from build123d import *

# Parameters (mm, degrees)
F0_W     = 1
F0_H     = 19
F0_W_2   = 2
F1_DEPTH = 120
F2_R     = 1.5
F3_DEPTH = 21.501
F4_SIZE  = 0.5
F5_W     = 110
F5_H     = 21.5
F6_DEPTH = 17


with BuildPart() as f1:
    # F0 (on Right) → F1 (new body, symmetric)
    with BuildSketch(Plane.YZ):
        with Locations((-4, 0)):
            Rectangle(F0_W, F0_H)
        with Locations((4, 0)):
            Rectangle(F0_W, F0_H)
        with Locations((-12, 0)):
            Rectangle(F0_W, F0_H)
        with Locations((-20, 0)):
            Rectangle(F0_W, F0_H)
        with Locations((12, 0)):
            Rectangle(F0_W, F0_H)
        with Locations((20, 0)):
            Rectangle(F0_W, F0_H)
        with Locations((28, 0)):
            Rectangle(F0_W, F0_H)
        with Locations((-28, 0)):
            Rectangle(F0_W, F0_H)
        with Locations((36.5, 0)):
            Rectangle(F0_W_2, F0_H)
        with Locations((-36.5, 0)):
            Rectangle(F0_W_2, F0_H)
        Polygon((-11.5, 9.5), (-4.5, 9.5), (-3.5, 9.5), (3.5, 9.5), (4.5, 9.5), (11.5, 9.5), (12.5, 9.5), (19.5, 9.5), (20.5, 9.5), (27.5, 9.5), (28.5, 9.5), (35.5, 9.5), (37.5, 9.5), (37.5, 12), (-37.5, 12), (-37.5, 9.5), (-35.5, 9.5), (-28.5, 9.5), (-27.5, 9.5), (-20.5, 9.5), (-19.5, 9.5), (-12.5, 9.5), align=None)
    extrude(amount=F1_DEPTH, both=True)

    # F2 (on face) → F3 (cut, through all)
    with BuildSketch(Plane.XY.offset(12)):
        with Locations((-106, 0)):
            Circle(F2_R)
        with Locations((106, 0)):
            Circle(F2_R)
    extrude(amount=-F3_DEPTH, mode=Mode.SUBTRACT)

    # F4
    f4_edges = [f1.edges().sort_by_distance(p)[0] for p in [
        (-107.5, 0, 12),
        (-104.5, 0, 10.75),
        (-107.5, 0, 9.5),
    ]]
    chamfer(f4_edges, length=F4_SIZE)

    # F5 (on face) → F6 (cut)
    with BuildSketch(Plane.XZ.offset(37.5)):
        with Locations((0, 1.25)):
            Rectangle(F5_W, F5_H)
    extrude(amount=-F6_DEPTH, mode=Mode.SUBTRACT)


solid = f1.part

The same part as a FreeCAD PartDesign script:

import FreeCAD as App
import Part
import Sketcher
from FreeCAD import Vector
Q = App.Units.Quantity


def edges_at(feature, points):
    """Names of the edges that pass closest to the given points."""
    edges = feature.Shape.Edges
    near = lambda p: min(range(len(edges)), key=lambda i: edges[i].distToShape(Part.Vertex(*p))[0])
    return sorted({f"Edge{near(p) + 1}" for p in points})


def add_polygon(sketch, points):
    """Adds a closed chain of lines whose ends are joined by coincident constraints."""
    first, n = sketch.GeometryCount, len(points)
    for a, b in zip(points, points[1:] + points[:1]):
        sketch.addGeometry(Part.LineSegment(App.Vector(*a, 0), App.Vector(*b, 0)), False)
    for i in range(n):
        sketch.addConstraint(Sketcher.Constraint("Coincident", first + i, 2, first + (i + 1) % n, 1))

doc = App.newDocument("Part")
body = doc.addObject("PartDesign::Body", "Body")

# Sketch on YZ plane
sketch1 = body.newObject("Sketcher::SketchObject", "Sketch")
sketch1.AttachmentSupport = (doc.getObject("YZ_Plane"), [""])
sketch1.MapMode = "FlatFace"
add_polygon(sketch1, [(-4.5, 9.5), (-4.5, -9.5), (-3.5, -9.5), (-3.5, 9.5), (3.5, 9.5), (3.5, -9.5), (4.5, -9.5), (4.5, 9.5), (11.5, 9.5), (11.5, -9.5), (12.5, -9.5), (12.5, 9.5), (19.5, 9.5), (19.5, -9.5), (20.5, -9.5), (20.5, 9.5), (27.5, 9.5), (27.5, -9.5), (28.5, -9.5), (28.5, 9.5), (35.5, 9.5), (35.5, -9.5), (37.5, -9.5), (37.5, 12), (-37.5, 12), (-37.5, -9.5), (-35.5, -9.5), (-35.5, 9.5), (-28.5, 9.5), (-28.5, -9.5), (-27.5, -9.5), (-27.5, 9.5), (-20.5, 9.5), (-20.5, -9.5), (-19.5, -9.5), (-19.5, 9.5), (-12.5, 9.5), (-12.5, -9.5), (-11.5, -9.5), (-11.5, 9.5)])  # lines 0-39
sketch1.addConstraint([
    Sketcher.Constraint("Vertical", 0),
    Sketcher.Constraint("Horizontal", 1),
    Sketcher.Constraint("Vertical", 2),
    Sketcher.Constraint("Horizontal", 3),
    Sketcher.Constraint("Vertical", 4),
    Sketcher.Constraint("Horizontal", 5),
    Sketcher.Constraint("Vertical", 6),
    Sketcher.Constraint("Horizontal", 7),
    Sketcher.Constraint("Vertical", 8),
    Sketcher.Constraint("Horizontal", 9),
    Sketcher.Constraint("Vertical", 10),
    Sketcher.Constraint("Horizontal", 11),
    Sketcher.Constraint("Vertical", 12),
    Sketcher.Constraint("Horizontal", 13),
    Sketcher.Constraint("Vertical", 14),
    Sketcher.Constraint("Horizontal", 15),
    Sketcher.Constraint("Vertical", 16),
    Sketcher.Constraint("Horizontal", 17),
    Sketcher.Constraint("Vertical", 18),
    Sketcher.Constraint("Horizontal", 19),
    Sketcher.Constraint("Vertical", 20),
    Sketcher.Constraint("Horizontal", 21),
    Sketcher.Constraint("Vertical", 22),
    Sketcher.Constraint("Horizontal", 23),
    Sketcher.Constraint("Vertical", 24),
    Sketcher.Constraint("Horizontal", 25),
    Sketcher.Constraint("Vertical", 26),
    Sketcher.Constraint("Horizontal", 27),
    Sketcher.Constraint("Vertical", 28),
    Sketcher.Constraint("Horizontal", 29),
    Sketcher.Constraint("Vertical", 30),
    Sketcher.Constraint("Horizontal", 31),
    Sketcher.Constraint("Vertical", 32),
    Sketcher.Constraint("Horizontal", 33),
    Sketcher.Constraint("Vertical", 34),
    Sketcher.Constraint("Horizontal", 35),
    Sketcher.Constraint("Vertical", 36),
    Sketcher.Constraint("Horizontal", 37),
    Sketcher.Constraint("Vertical", 38),
    Sketcher.Constraint("Horizontal", 39),
    Sketcher.Constraint("Symmetric", 1, 2, 3, 2, -1, 1),
    Sketcher.Constraint("Symmetric", 0, 2, 6, 2, -1, 1),
    Sketcher.Constraint("Symmetric", 19, 2, 25, 2, -1, 1),
    Sketcher.Constraint("Symmetric", 17, 2, 27, 2, -1, 1),
    Sketcher.Constraint("Symmetric", 15, 2, 29, 2, -1, 1),
    Sketcher.Constraint("Symmetric", 13, 2, 31, 2, -1, 1),
    Sketcher.Constraint("Symmetric", 11, 2, 33, 2, -1, 1),
    Sketcher.Constraint("Symmetric", 9, 2, 35, 2, -1, 1),
    Sketcher.Constraint("Symmetric", 7, 2, 37, 2, -1, 1),
    Sketcher.Constraint("Symmetric", 21, 2, 24, 2, -2),
    Sketcher.Constraint("Horizontal", 1, 2, 4, 2),
    Sketcher.Constraint("Horizontal", 5, 2, 8, 2),
    Sketcher.Constraint("Horizontal", 7, 2, 10, 2),
    Sketcher.Constraint("Horizontal", 9, 2, 12, 2),
    Sketcher.Constraint("Horizontal", 11, 2, 14, 2),
    Sketcher.Constraint("Horizontal", 13, 2, 16, 2),
    Sketcher.Constraint("Horizontal", 15, 2, 18, 2),
    Sketcher.Constraint("Horizontal", 35, 2, 38, 2),
    Sketcher.Constraint("Equal", 3, 7),
    Sketcher.Constraint("Equal", 5, 9),
    Sketcher.Constraint("Equal", 7, 11),
    Sketcher.Constraint("Equal", 9, 13),
    Sketcher.Constraint("Equal", 11, 15),
    Sketcher.Constraint("Equal", 13, 17),
    Sketcher.Constraint("Equal", 15, 19),
    Sketcher.Constraint("DistanceX", 1, 1, 1, 2, Q("1 mm")),
    Sketcher.Constraint("DistanceX", 3, 1, 3, 2, Q("7 mm")),
    Sketcher.Constraint("DistanceX", 21, 1, 21, 2, Q("2 mm")),
    Sketcher.Constraint("DistanceY", 0, 2, 0, 1, Q("19 mm")),
    Sketcher.Constraint("DistanceY", 22, 1, 22, 2, Q("21.5 mm")),
])
pad1 = body.newObject("PartDesign::Pad", "Pad")
pad1.Profile = sketch1
pad1.Length = 240
pad1.Midplane = True

# Sketch on XY plane
sketch2 = body.newObject("Sketcher::SketchObject", "Sketch001")
sketch2.AttachmentSupport = (doc.getObject("XY_Plane"), [""])
sketch2.MapMode = "FlatFace"
sketch2.AttachmentOffset = App.Placement(Vector(0, 0, 12), App.Rotation())
sketch2.addGeometry([
    Part.Circle(Vector(-106, 0, 0), Vector(0, 0, 1), 1.5),
    Part.Circle(Vector(106, 0, 0), Vector(0, 0, 1), 1.5),
], False)
sketch2.addConstraint([
    Sketcher.Constraint("Equal", 0, 1),
    Sketcher.Constraint("Symmetric", 0, 3, 1, 3, -1, 1),
    Sketcher.Constraint("PointOnObject", 0, 3, -1),
    Sketcher.Constraint("Diameter", 0, Q("3 mm")),
    Sketcher.Constraint("DistanceX", 0, 3, -1, 1, Q("106 mm")),
])
pocket1 = body.newObject("PartDesign::Pocket", "Pocket")
pocket1.Profile = sketch2
pocket1.Type = "ThroughAll"
doc.recompute()

chamfer = body.newObject("PartDesign::Chamfer", "Chamfer")
chamfer.Base = (pocket1, edges_at(pocket1, [(-107.5, 0, 12), (-104.5, 0, 10.75), (-107.5, 0, 9.5)]))
chamfer.Size = 0.5

# Sketch on XZ plane
sketch3 = body.newObject("Sketcher::SketchObject", "Sketch002")
sketch3.AttachmentSupport = (doc.getObject("XZ_Plane"), [""])
sketch3.MapMode = "FlatFace"
sketch3.AttachmentOffset = App.Placement(Vector(0, 0, 37.5), App.Rotation())
add_polygon(sketch3, [(-55, 12), (-55, -9.5), (55, -9.5), (55, 12)])  # lines 0-3
sketch3.addConstraint([
    Sketcher.Constraint("Vertical", 0),
    Sketcher.Constraint("Horizontal", 1),
    Sketcher.Constraint("Vertical", 2),
    Sketcher.Constraint("Horizontal", 3),
    Sketcher.Constraint("DistanceX", 1, 1, 1, 2, Q("110 mm")),
    Sketcher.Constraint("DistanceY", 0, 2, 0, 1, Q("21.5 mm")),
    Sketcher.Constraint("DistanceX", 0, 2, -1, 1, Q("55 mm")),
    Sketcher.Constraint("DistanceY", -1, 1, 2, 2, Q("12 mm")),
])
pocket2 = body.newObject("PartDesign::Pocket", "Pocket001")
pocket2.Profile = sketch3
pocket2.Length = 17

doc.recompute()
